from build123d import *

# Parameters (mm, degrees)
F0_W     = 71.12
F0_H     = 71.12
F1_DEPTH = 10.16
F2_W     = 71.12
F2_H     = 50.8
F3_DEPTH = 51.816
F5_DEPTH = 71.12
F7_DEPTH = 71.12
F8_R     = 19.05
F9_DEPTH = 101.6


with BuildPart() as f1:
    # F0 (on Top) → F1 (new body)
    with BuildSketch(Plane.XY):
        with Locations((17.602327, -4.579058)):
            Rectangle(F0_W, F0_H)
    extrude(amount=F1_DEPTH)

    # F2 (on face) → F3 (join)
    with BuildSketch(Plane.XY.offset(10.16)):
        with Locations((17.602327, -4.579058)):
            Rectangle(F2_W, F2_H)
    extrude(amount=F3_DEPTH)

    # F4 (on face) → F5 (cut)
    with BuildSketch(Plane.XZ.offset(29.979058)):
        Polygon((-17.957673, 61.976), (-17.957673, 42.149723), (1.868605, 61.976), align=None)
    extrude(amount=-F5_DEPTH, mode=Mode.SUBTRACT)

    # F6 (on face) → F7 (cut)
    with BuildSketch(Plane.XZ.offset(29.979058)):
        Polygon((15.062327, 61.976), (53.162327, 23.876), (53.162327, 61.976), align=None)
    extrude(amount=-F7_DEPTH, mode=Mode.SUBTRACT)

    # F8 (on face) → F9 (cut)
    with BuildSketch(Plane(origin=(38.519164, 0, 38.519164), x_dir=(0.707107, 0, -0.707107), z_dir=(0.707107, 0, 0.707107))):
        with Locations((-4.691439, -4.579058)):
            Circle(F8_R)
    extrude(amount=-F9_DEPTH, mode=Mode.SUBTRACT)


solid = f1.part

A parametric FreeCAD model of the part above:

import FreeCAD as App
import Part
import Sketcher
Q = App.Units.Quantity


def add_polygon(sketch, points):
    """Adds a closed chain of lines whose ends are joined by coincident constraints."""
    first, n = sketch.GeometryCount, len(points)
    for a, b in zip(points, points[1:] + points[:1]):
        sketch.addGeometry(Part.LineSegment(App.Vector(*a, 0), App.Vector(*b, 0)), False)
    for i in range(n):
        sketch.addConstraint(Sketcher.Constraint("Coincident", first + i, 2, first + (i + 1) % n, 1))

doc = App.newDocument("Part")
body = doc.addObject("PartDesign::Body", "Body")

# Sketch on XY plane
sketch1 = doc.addObject("Sketcher::SketchObject", "Sketch")
body.addObject(sketch1)
sketch1.AttachmentSupport = (doc.XY_Plane, [""])
sketch1.MapMode = "FlatFace"
add_polygon(sketch1, [(-17.957673, 30.980942), (-17.957673, -40.139058), (53.162327, -40.139058), (53.162327, 30.980942)])  # lines 0-3
sketch1.addConstraint([
    Sketcher.Constraint("Vertical", 0),
    Sketcher.Constraint("Horizontal", 1),
    Sketcher.Constraint("Vertical", 2),
    Sketcher.Constraint("Horizontal", 3),
    Sketcher.Constraint("Equal", 3, 0),
    Sketcher.Constraint("DistanceX", 1, 1, 1, 2, Q("2.8 in")),
    Sketcher.Constraint("DistanceY", -1, 1, 2, 2, 30.980942),
    Sketcher.Constraint("DistanceX", 0, 2, -1, 1, 17.957673),
])
pad1 = doc.addObject("PartDesign::Pad", "Pad")
body.addObject(pad1)
pad1.Profile = sketch1
pad1.Length = Q("0.4 in")

# Sketch on XY plane
sketch2 = doc.addObject("Sketcher::SketchObject", "Sketch001")
body.addObject(sketch2)
sketch2.AttachmentSupport = (doc.XY_Plane, [""])
sketch2.MapMode = "FlatFace"
sketch2.AttachmentOffset = App.Placement(App.Vector(0, 0, 0.4 * 25.4), App.Rotation())
add_polygon(sketch2, [(-17.957673, 20.820942), (-17.957673, -29.979058), (53.162327, -29.979058), (53.162327, 20.820942)])  # lines 0-3
sketch2.addConstraint([
    Sketcher.Constraint("Vertical", 0),
    Sketcher.Constraint("Horizontal", 1),
    Sketcher.Constraint("Vertical", 2),
    Sketcher.Constraint("Horizontal", 3),
    Sketcher.Constraint("DistanceY", 0, 2, 0, 1, Q("2 in")),
    Sketcher.Constraint("DistanceX", 1, 1, 1, 2, Q("2.8 in")),
    Sketcher.Constraint("DistanceY", -1, 1, 2, 2, 20.820942),
    Sketcher.Constraint("DistanceX", 0, 2, -1, 1, 17.957673),
])
pad2 = doc.addObject("PartDesign::Pad", "Pad001")
body.addObject(pad2)
pad2.Profile = sketch2
pad2.Length = Q("2.04 in")

# Sketch on XZ plane
sketch3 = doc.addObject("Sketcher::SketchObject", "Sketch002")
body.addObject(sketch3)
sketch3.AttachmentSupport = (doc.XZ_Plane, [""])
sketch3.MapMode = "FlatFace"
sketch3.AttachmentOffset = App.Placement(App.Vector(0, 0, 29.979058), App.Rotation())
add_polygon(sketch3, [(-17.957673, 61.976), (-17.957673, 42.149723), (1.868605, 61.976)])  # lines 0-2
sketch3.addConstraint([
    Sketcher.Constraint("Vertical", 0),
    Sketcher.Constraint("Horizontal", 2),
    Sketcher.Constraint("Equal", 2, 0),
    Sketcher.Constraint("DistanceY", -1, 1, 1, 2, Q("2.44 in")),
    Sketcher.Constraint("Distance", 1, 28.038591),
    Sketcher.Constraint("DistanceX", 0, 2, -1, 1, 17.957673),
])
pocket1 = doc.addObject("PartDesign::Pocket", "Pocket")
body.addObject(pocket1)
pocket1.Profile = sketch3
pocket1.Length = Q("2.8 in")

# Sketch on XZ plane
sketch4 = doc.addObject("Sketcher::SketchObject", "Sketch003")
body.addObject(sketch4)
sketch4.AttachmentSupport = (doc.XZ_Plane, [""])
sketch4.MapMode = "FlatFace"
sketch4.AttachmentOffset = App.Placement(App.Vector(0, 0, 29.979058), App.Rotation())
add_polygon(sketch4, [(15.062327, 61.976), (53.162327, 23.876), (53.162327, 61.976)])  # lines 0-2
sketch4.addConstraint([
    Sketcher.Constraint("Vertical", 1),
    Sketcher.Constraint("Horizontal", 2),
    Sketcher.Constraint("Equal", 2, 1),
    Sketcher.Constraint("DistanceX", 2, 2, 2, 1, Q("1.5 in")),
    Sketcher.Constraint("DistanceY", -1, 1, 0, 2, Q("0.94 in")),
    Sketcher.Constraint("DistanceX", -1, 1, 0, 2, 53.162327),
])
pocket2 = doc.addObject("PartDesign::Pocket", "Pocket001")
body.addObject(pocket2)
pocket2.Profile = sketch4
pocket2.Length = Q("2.8 in")

# Sketch on an angled plane
sketch5 = doc.addObject("Sketcher::SketchObject", "Sketch004")
body.addObject(sketch5)
sketch5.Placement = App.Placement(App.Vector(38.519164, 0, 38.519164), App.Rotation(App.Vector(0.707106781, 0, -0.707106781), App.Vector(0, 0.999999999, 0), App.Vector(0.707106781, 0, 0.707106781), "ZXY"))
sketch5.addGeometry(Part.Circle(App.Vector(-4.691439, -4.579058, 0), App.Vector(0, 0, 1), 19.05), False)
sketch5.addConstraint([
    Sketcher.Constraint("Diameter", 0, Q("1.5 in")),
    Sketcher.Constraint("DistanceX", 0, 3, -1, 1, 4.691439),
    Sketcher.Constraint("DistanceY", 0, 3, -1, 1, 4.579058),
])
pocket3 = doc.addObject("PartDesign::Pocket", "Pocket002")
body.addObject(pocket3)
pocket3.Profile = sketch5
pocket3.Length = Q("4 in")

doc.recompute()
